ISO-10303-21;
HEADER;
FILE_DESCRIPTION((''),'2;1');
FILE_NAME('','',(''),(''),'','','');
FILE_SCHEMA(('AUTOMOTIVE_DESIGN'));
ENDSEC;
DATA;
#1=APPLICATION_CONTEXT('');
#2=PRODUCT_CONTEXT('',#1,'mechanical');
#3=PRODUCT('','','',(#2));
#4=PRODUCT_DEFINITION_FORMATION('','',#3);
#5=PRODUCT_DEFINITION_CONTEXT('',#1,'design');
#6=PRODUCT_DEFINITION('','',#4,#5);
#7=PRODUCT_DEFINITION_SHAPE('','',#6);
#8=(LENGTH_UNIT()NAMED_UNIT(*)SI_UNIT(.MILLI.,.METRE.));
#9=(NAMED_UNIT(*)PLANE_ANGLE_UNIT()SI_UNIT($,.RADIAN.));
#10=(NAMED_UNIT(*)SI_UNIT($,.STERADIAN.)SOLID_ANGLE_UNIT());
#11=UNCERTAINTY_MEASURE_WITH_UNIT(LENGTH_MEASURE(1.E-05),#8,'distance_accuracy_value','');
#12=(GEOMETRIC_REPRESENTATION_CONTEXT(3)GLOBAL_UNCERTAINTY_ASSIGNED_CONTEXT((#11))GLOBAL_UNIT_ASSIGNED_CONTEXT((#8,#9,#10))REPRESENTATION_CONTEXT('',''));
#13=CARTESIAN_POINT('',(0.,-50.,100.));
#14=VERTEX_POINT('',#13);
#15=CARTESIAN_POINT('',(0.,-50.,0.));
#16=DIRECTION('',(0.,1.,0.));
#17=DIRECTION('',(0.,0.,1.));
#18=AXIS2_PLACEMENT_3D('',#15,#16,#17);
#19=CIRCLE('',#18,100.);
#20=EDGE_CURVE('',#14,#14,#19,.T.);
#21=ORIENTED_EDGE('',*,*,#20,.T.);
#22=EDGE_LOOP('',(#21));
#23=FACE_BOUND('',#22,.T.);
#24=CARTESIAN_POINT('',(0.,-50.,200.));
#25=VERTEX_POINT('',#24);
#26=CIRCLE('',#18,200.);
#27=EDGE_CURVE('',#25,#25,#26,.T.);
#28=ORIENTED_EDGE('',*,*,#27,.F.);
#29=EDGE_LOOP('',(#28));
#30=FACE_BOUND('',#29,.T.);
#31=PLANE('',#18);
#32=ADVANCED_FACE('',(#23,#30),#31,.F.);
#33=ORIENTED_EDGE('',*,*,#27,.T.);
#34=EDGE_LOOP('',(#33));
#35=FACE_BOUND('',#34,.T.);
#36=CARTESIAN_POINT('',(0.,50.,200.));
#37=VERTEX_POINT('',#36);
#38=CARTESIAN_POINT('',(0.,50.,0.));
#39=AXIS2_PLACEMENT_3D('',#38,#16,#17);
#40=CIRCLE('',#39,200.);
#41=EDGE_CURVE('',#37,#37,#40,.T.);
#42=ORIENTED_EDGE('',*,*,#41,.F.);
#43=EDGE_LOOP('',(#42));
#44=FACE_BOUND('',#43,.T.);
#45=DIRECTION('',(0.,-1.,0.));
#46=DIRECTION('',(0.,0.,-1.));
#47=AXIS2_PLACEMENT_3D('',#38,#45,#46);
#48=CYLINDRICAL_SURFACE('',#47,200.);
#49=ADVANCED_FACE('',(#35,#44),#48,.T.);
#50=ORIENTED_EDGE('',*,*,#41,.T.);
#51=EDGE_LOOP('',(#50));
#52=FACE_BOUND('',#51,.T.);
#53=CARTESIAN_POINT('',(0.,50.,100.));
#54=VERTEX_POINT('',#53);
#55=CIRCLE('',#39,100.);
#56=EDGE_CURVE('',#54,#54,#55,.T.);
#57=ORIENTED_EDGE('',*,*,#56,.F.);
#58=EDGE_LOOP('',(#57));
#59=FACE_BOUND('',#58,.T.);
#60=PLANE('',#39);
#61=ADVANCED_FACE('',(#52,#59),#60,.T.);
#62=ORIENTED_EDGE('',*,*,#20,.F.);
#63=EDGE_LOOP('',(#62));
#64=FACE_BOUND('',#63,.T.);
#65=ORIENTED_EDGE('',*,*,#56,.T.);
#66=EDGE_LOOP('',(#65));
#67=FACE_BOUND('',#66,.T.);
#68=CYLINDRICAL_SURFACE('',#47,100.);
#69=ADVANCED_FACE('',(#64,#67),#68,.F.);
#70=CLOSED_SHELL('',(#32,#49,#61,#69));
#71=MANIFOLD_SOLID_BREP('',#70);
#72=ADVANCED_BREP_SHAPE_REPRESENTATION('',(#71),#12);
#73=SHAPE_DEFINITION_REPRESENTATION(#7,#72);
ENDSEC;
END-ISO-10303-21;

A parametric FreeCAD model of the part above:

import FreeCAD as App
import Part
import Sketcher

V = App.Vector
Q = App.Units.Quantity

doc = App.newDocument("Part")
body = doc.addObject("PartDesign::Body", "Body")

sketch1 = body.newObject("Sketcher::SketchObject", "Sketch")
sketch1.AttachmentSupport = (doc.getObject("XZ_Plane"), [""])
sketch1.MapMode = "FlatFace"
sketch1.addGeometry([
    Part.Circle(V(0, 0, 0), V(0, 0, 1), 200),
    Part.Circle(V(0, 0, 0), V(0, 0, 1), 100),
], False)
sketch1.addConstraint([
    Sketcher.Constraint("Coincident", 0, 3, -1, 1),
    Sketcher.Constraint("Coincident", 1, 3, -1, 1),
    Sketcher.Constraint("Diameter", 0, Q("400 mm")),
    Sketcher.Constraint("Diameter", 1, Q("200 mm")),
])
pad1 = body.newObject("PartDesign::Pad", "Pad")
pad1.Profile = sketch1
pad1.Length = 100
pad1.Midplane = True

doc.recompute()
